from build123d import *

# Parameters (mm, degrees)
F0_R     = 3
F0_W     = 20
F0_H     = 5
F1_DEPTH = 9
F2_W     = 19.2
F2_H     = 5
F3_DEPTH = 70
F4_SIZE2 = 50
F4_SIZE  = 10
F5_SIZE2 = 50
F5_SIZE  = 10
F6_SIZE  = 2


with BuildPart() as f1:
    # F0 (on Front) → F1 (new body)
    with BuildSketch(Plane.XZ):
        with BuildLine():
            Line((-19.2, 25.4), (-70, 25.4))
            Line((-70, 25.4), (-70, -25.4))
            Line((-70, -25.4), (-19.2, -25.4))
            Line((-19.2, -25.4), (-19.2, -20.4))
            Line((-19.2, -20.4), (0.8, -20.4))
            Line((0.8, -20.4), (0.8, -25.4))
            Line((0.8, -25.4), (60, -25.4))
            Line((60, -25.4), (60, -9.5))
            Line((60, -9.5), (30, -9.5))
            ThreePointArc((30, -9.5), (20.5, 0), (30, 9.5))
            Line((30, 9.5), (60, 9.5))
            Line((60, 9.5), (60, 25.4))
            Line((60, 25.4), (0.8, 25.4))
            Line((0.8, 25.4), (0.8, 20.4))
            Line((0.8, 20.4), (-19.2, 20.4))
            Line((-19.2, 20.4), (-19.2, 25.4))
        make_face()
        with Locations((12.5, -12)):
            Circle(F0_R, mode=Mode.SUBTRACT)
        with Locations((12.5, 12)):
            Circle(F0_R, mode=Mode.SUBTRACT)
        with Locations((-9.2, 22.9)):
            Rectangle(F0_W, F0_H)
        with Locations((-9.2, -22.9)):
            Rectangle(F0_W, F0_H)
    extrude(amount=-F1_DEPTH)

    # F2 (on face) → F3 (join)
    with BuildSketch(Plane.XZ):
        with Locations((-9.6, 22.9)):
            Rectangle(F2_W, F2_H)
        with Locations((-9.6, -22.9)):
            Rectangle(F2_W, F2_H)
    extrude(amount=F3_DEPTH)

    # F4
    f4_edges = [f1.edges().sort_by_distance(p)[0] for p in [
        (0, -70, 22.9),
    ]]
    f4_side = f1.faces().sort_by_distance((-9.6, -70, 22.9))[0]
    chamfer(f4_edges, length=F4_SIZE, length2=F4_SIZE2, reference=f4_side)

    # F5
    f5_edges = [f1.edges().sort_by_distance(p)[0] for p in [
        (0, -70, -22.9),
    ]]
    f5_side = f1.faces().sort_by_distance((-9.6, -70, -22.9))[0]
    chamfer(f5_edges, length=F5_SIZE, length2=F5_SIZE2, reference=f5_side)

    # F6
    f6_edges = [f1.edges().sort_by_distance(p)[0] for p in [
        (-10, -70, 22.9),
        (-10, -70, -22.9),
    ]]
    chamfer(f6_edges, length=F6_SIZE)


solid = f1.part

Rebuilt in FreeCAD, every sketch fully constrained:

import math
import FreeCAD as App
import Part
import Sketcher

V = App.Vector
Q = App.Units.Quantity


def edges_at(feature, points):
    """Names of the edges that pass closest to the given points."""
    edges = feature.Shape.Edges
    near = lambda p: min(range(len(edges)), key=lambda i: edges[i].distToShape(Part.Vertex(*p))[0])
    return sorted({f"Edge{near(p) + 1}" for p in points})


def add_polygon(sketch, points):
    """Adds a closed chain of lines whose ends are joined by coincident constraints."""
    first, n = sketch.GeometryCount, len(points)
    for a, b in zip(points, points[1:] + points[:1]):
        sketch.addGeometry(Part.LineSegment(App.Vector(*a, 0), App.Vector(*b, 0)), False)
    for i in range(n):
        sketch.addConstraint(Sketcher.Constraint("Coincident", first + i, 2, first + (i + 1) % n, 1))

doc = App.newDocument("Part")
body = doc.addObject("PartDesign::Body", "Body")

sketch1 = doc.addObject("Sketcher::SketchObject", "Sketch")
body.addObject(sketch1)
sketch1.AttachmentSupport = (doc.XZ_Plane, [""])
sketch1.MapMode = "FlatFace"
sketch1.addGeometry(Part.LineSegment(V(-70, 25.4, 0), V(-70, -25.4, 0)), False)
sketch1.addGeometry(Part.LineSegment(V(-70, -25.4, 0), V(60, -25.4, 0)), False)
sketch1.addGeometry(Part.LineSegment(V(60, -25.4, 0), V(60, -9.5, 0)), False)
sketch1.addGeometry(Part.LineSegment(V(60, -9.5, 0), V(30, -9.5, 0)), False)
sketch1.addGeometry(Part.ArcOfCircle(Part.Circle(V(30, 0, 0), V(0, 0, 1), 9.5), math.radians(90), math.radians(270)), False)
sketch1.addGeometry(Part.LineSegment(V(30, 9.5, 0), V(60, 9.5, 0)), False)
sketch1.addGeometry(Part.LineSegment(V(60, 9.5, 0), V(60, 25.4, 0)), False)
sketch1.addGeometry(Part.LineSegment(V(60, 25.4, 0), V(-70, 25.4, 0)), False)
sketch1.addGeometry(Part.Circle(V(12.5, -12, 0), V(0, 0, 1), 3), False)
sketch1.addGeometry(Part.Circle(V(12.5, 12, 0), V(0, 0, 1), 3), False)
sketch1.addConstraint(Sketcher.Constraint("Coincident", 0, 2, 1, 1))
sketch1.addConstraint(Sketcher.Constraint("Coincident", 1, 2, 2, 1))
sketch1.addConstraint(Sketcher.Constraint("Coincident", 2, 2, 3, 1))
sketch1.addConstraint(Sketcher.Constraint("Tangent", 3, 2, 4, 2))
sketch1.addConstraint(Sketcher.Constraint("Tangent", 4, 1, 5, 1))
sketch1.addConstraint(Sketcher.Constraint("Coincident", 5, 2, 6, 1))
sketch1.addConstraint(Sketcher.Constraint("Coincident", 6, 2, 7, 1))
sketch1.addConstraint(Sketcher.Constraint("Coincident", 7, 2, 0, 1))
sketch1.addConstraint(Sketcher.Constraint("Vertical", 0))
sketch1.addConstraint(Sketcher.Constraint("Horizontal", 1))
sketch1.addConstraint(Sketcher.Constraint("Vertical", 2))
sketch1.addConstraint(Sketcher.Constraint("Horizontal", 3))
sketch1.addConstraint(Sketcher.Constraint("Horizontal", 5))
sketch1.addConstraint(Sketcher.Constraint("Vertical", 6))
sketch1.addConstraint(Sketcher.Constraint("Horizontal", 7))
sketch1.addConstraint(Sketcher.Constraint("Equal", 8, 9))
sketch1.addConstraint(Sketcher.Constraint("Symmetric", 8, 3, 9, 3, -1))
sketch1.addConstraint(Sketcher.Constraint("Symmetric", 2, 2, 5, 2, -1))
sketch1.addConstraint(Sketcher.Constraint("Equal", 2, 6))
sketch1.addConstraint(Sketcher.Constraint("Diameter", 8, Q("6 mm")))
sketch1.addConstraint(Sketcher.Constraint("Radius", 4, Q("9.5 mm")))
sketch1.addConstraint(Sketcher.Constraint("DistanceX", 1, 1, 1, 2, Q("130 mm")))
sketch1.addConstraint(Sketcher.Constraint("DistanceX", 3, 2, 3, 1, Q("30 mm")))
sketch1.addConstraint(Sketcher.Constraint("DistanceY", 0, 2, 0, 1, Q("50.8 mm")))
sketch1.addConstraint(Sketcher.Constraint("DistanceX", -1, 1, 4, 3, Q("30 mm")))
sketch1.addConstraint(Sketcher.Constraint("DistanceY", 8, 3, -1, 1, Q("12 mm")))
sketch1.addConstraint(Sketcher.Constraint("DistanceX", -1, 1, 8, 3, Q("12.5 mm")))
pad1 = doc.addObject("PartDesign::Pad", "Pad")
body.addObject(pad1)
pad1.Profile = sketch1
pad1.Length = 9
pad1.Reversed = True

sketch2 = doc.addObject("Sketcher::SketchObject", "Sketch001")
body.addObject(sketch2)
sketch2.AttachmentSupport = (doc.XZ_Plane, [""])
sketch2.MapMode = "FlatFace"
add_polygon(sketch2, [(-19.2, 25.4), (-19.2, 20.4), (0, 20.4), (0, 25.4)])
add_polygon(sketch2, [(-19.2, -20.4), (-19.2, -25.4), (0, -25.4), (0, -20.4)])
sketch2.addConstraint(Sketcher.Constraint("Vertical", 0))
sketch2.addConstraint(Sketcher.Constraint("Horizontal", 1))
sketch2.addConstraint(Sketcher.Constraint("Vertical", 2))
sketch2.addConstraint(Sketcher.Constraint("Horizontal", 3))
sketch2.addConstraint(Sketcher.Constraint("Vertical", 4))
sketch2.addConstraint(Sketcher.Constraint("Horizontal", 5))
sketch2.addConstraint(Sketcher.Constraint("Vertical", 6))
sketch2.addConstraint(Sketcher.Constraint("Horizontal", 7))
sketch2.addConstraint(Sketcher.Constraint("Symmetric", 2, 2, 5, 2, -1, 1))
sketch2.addConstraint(Sketcher.Constraint("Symmetric", 1, 2, 6, 2, -1))
sketch2.addConstraint(Sketcher.Constraint("Vertical", 3, 2, 4, 2))
sketch2.addConstraint(Sketcher.Constraint("DistanceY", 0, 2, 0, 1, Q("5 mm")))
sketch2.addConstraint(Sketcher.Constraint("DistanceX", 1, 1, 1, 2, Q("19.2 mm")))
sketch2.addConstraint(Sketcher.Constraint("DistanceY", -1, 1, 0, 2, Q("20.4 mm")))
pad2 = doc.addObject("PartDesign::Pad", "Pad001")
body.addObject(pad2)
pad2.Profile = sketch2
pad2.Length = 70
doc.recompute()

chamfer = doc.addObject("PartDesign::Chamfer", "Chamfer")
body.addObject(chamfer)
chamfer.Base = (pad2, edges_at(pad2, [(0, -70, 22.9)]))
chamfer.ChamferType = "Two distances"
chamfer.Size = 10
chamfer.Size2 = 50
chamfer.FlipDirection = True
doc.recompute()

chamfer2 = doc.addObject("PartDesign::Chamfer", "Chamfer001")
body.addObject(chamfer2)
chamfer2.Base = (chamfer, edges_at(chamfer, [(0, -70, -22.9)]))
chamfer2.ChamferType = "Two distances"
chamfer2.Size = 10
chamfer2.Size2 = 50
chamfer2.FlipDirection = True
doc.recompute()

chamfer3 = doc.addObject("PartDesign::Chamfer", "Chamfer002")
body.addObject(chamfer3)
chamfer3.Base = (chamfer2, edges_at(chamfer2, [(-10, -70, 22.9), (-10, -70, -22.9)]))
chamfer3.Size = 2

doc.recompute()
